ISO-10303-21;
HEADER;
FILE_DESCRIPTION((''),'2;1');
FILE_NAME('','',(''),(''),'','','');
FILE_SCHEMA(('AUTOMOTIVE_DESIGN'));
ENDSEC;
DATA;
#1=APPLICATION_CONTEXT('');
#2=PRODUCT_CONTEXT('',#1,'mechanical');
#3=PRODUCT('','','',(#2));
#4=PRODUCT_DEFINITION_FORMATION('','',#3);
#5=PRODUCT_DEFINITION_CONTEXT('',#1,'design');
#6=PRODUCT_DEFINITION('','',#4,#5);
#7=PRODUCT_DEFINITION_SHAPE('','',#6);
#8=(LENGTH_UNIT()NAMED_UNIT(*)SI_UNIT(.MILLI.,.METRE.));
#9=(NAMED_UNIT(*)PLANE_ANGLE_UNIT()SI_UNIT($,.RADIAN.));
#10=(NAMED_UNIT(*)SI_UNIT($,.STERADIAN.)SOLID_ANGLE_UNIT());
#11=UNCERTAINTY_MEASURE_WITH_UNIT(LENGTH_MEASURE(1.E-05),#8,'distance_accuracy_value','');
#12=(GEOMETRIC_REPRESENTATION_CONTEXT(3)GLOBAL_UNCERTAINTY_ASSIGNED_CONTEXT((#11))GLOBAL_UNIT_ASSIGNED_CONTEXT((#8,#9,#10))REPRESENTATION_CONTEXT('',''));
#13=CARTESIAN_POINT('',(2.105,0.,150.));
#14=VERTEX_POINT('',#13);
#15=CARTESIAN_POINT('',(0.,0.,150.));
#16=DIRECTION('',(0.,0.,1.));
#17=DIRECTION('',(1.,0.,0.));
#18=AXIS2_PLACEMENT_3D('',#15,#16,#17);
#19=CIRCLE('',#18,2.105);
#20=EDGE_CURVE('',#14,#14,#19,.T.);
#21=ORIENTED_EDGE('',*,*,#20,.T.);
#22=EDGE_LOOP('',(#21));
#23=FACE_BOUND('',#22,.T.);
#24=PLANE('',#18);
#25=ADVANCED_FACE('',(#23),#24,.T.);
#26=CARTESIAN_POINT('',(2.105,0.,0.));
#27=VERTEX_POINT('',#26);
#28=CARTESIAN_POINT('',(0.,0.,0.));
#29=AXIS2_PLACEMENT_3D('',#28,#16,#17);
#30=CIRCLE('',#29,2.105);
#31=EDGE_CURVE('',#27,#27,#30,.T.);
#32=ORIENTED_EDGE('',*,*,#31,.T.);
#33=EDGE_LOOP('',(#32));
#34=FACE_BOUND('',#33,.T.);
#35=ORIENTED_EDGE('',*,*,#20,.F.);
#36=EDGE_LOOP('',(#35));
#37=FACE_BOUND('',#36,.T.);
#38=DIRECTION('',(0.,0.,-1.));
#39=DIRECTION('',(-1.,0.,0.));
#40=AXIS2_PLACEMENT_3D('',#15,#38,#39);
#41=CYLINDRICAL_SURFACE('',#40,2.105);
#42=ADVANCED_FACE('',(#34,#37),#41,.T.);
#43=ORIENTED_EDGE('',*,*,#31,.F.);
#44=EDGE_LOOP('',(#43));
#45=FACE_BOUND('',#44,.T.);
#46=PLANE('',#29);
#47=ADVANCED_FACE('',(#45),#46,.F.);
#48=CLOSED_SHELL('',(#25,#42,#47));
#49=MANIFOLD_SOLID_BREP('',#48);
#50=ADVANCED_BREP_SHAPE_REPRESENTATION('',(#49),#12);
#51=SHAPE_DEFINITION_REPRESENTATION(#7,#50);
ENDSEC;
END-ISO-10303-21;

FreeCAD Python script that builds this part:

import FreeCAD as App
import Part
import Sketcher

V = App.Vector

doc = App.newDocument("Part")
body = doc.addObject("PartDesign::Body", "Body")

# Sketch on XY plane
sketch1 = body.newObject("Sketcher::SketchObject", "Sketch")
sketch1.AttachmentSupport = (doc.getObject("XY_Plane"), [""])
sketch1.MapMode = "FlatFace"
sketch1.addGeometry(Part.Circle(V(0, 0, 0), V(0, 0, 1), 2.105), False)
sketch1.addConstraint([
    Sketcher.Constraint("Coincident", 0, 3, -1, 1),
    Sketcher.Constraint("Diameter", 0, 4.21),
])
pad1 = body.newObject("PartDesign::Pad", "Pad")
pad1.Profile = sketch1
pad1.Length = 150

doc.recompute()
